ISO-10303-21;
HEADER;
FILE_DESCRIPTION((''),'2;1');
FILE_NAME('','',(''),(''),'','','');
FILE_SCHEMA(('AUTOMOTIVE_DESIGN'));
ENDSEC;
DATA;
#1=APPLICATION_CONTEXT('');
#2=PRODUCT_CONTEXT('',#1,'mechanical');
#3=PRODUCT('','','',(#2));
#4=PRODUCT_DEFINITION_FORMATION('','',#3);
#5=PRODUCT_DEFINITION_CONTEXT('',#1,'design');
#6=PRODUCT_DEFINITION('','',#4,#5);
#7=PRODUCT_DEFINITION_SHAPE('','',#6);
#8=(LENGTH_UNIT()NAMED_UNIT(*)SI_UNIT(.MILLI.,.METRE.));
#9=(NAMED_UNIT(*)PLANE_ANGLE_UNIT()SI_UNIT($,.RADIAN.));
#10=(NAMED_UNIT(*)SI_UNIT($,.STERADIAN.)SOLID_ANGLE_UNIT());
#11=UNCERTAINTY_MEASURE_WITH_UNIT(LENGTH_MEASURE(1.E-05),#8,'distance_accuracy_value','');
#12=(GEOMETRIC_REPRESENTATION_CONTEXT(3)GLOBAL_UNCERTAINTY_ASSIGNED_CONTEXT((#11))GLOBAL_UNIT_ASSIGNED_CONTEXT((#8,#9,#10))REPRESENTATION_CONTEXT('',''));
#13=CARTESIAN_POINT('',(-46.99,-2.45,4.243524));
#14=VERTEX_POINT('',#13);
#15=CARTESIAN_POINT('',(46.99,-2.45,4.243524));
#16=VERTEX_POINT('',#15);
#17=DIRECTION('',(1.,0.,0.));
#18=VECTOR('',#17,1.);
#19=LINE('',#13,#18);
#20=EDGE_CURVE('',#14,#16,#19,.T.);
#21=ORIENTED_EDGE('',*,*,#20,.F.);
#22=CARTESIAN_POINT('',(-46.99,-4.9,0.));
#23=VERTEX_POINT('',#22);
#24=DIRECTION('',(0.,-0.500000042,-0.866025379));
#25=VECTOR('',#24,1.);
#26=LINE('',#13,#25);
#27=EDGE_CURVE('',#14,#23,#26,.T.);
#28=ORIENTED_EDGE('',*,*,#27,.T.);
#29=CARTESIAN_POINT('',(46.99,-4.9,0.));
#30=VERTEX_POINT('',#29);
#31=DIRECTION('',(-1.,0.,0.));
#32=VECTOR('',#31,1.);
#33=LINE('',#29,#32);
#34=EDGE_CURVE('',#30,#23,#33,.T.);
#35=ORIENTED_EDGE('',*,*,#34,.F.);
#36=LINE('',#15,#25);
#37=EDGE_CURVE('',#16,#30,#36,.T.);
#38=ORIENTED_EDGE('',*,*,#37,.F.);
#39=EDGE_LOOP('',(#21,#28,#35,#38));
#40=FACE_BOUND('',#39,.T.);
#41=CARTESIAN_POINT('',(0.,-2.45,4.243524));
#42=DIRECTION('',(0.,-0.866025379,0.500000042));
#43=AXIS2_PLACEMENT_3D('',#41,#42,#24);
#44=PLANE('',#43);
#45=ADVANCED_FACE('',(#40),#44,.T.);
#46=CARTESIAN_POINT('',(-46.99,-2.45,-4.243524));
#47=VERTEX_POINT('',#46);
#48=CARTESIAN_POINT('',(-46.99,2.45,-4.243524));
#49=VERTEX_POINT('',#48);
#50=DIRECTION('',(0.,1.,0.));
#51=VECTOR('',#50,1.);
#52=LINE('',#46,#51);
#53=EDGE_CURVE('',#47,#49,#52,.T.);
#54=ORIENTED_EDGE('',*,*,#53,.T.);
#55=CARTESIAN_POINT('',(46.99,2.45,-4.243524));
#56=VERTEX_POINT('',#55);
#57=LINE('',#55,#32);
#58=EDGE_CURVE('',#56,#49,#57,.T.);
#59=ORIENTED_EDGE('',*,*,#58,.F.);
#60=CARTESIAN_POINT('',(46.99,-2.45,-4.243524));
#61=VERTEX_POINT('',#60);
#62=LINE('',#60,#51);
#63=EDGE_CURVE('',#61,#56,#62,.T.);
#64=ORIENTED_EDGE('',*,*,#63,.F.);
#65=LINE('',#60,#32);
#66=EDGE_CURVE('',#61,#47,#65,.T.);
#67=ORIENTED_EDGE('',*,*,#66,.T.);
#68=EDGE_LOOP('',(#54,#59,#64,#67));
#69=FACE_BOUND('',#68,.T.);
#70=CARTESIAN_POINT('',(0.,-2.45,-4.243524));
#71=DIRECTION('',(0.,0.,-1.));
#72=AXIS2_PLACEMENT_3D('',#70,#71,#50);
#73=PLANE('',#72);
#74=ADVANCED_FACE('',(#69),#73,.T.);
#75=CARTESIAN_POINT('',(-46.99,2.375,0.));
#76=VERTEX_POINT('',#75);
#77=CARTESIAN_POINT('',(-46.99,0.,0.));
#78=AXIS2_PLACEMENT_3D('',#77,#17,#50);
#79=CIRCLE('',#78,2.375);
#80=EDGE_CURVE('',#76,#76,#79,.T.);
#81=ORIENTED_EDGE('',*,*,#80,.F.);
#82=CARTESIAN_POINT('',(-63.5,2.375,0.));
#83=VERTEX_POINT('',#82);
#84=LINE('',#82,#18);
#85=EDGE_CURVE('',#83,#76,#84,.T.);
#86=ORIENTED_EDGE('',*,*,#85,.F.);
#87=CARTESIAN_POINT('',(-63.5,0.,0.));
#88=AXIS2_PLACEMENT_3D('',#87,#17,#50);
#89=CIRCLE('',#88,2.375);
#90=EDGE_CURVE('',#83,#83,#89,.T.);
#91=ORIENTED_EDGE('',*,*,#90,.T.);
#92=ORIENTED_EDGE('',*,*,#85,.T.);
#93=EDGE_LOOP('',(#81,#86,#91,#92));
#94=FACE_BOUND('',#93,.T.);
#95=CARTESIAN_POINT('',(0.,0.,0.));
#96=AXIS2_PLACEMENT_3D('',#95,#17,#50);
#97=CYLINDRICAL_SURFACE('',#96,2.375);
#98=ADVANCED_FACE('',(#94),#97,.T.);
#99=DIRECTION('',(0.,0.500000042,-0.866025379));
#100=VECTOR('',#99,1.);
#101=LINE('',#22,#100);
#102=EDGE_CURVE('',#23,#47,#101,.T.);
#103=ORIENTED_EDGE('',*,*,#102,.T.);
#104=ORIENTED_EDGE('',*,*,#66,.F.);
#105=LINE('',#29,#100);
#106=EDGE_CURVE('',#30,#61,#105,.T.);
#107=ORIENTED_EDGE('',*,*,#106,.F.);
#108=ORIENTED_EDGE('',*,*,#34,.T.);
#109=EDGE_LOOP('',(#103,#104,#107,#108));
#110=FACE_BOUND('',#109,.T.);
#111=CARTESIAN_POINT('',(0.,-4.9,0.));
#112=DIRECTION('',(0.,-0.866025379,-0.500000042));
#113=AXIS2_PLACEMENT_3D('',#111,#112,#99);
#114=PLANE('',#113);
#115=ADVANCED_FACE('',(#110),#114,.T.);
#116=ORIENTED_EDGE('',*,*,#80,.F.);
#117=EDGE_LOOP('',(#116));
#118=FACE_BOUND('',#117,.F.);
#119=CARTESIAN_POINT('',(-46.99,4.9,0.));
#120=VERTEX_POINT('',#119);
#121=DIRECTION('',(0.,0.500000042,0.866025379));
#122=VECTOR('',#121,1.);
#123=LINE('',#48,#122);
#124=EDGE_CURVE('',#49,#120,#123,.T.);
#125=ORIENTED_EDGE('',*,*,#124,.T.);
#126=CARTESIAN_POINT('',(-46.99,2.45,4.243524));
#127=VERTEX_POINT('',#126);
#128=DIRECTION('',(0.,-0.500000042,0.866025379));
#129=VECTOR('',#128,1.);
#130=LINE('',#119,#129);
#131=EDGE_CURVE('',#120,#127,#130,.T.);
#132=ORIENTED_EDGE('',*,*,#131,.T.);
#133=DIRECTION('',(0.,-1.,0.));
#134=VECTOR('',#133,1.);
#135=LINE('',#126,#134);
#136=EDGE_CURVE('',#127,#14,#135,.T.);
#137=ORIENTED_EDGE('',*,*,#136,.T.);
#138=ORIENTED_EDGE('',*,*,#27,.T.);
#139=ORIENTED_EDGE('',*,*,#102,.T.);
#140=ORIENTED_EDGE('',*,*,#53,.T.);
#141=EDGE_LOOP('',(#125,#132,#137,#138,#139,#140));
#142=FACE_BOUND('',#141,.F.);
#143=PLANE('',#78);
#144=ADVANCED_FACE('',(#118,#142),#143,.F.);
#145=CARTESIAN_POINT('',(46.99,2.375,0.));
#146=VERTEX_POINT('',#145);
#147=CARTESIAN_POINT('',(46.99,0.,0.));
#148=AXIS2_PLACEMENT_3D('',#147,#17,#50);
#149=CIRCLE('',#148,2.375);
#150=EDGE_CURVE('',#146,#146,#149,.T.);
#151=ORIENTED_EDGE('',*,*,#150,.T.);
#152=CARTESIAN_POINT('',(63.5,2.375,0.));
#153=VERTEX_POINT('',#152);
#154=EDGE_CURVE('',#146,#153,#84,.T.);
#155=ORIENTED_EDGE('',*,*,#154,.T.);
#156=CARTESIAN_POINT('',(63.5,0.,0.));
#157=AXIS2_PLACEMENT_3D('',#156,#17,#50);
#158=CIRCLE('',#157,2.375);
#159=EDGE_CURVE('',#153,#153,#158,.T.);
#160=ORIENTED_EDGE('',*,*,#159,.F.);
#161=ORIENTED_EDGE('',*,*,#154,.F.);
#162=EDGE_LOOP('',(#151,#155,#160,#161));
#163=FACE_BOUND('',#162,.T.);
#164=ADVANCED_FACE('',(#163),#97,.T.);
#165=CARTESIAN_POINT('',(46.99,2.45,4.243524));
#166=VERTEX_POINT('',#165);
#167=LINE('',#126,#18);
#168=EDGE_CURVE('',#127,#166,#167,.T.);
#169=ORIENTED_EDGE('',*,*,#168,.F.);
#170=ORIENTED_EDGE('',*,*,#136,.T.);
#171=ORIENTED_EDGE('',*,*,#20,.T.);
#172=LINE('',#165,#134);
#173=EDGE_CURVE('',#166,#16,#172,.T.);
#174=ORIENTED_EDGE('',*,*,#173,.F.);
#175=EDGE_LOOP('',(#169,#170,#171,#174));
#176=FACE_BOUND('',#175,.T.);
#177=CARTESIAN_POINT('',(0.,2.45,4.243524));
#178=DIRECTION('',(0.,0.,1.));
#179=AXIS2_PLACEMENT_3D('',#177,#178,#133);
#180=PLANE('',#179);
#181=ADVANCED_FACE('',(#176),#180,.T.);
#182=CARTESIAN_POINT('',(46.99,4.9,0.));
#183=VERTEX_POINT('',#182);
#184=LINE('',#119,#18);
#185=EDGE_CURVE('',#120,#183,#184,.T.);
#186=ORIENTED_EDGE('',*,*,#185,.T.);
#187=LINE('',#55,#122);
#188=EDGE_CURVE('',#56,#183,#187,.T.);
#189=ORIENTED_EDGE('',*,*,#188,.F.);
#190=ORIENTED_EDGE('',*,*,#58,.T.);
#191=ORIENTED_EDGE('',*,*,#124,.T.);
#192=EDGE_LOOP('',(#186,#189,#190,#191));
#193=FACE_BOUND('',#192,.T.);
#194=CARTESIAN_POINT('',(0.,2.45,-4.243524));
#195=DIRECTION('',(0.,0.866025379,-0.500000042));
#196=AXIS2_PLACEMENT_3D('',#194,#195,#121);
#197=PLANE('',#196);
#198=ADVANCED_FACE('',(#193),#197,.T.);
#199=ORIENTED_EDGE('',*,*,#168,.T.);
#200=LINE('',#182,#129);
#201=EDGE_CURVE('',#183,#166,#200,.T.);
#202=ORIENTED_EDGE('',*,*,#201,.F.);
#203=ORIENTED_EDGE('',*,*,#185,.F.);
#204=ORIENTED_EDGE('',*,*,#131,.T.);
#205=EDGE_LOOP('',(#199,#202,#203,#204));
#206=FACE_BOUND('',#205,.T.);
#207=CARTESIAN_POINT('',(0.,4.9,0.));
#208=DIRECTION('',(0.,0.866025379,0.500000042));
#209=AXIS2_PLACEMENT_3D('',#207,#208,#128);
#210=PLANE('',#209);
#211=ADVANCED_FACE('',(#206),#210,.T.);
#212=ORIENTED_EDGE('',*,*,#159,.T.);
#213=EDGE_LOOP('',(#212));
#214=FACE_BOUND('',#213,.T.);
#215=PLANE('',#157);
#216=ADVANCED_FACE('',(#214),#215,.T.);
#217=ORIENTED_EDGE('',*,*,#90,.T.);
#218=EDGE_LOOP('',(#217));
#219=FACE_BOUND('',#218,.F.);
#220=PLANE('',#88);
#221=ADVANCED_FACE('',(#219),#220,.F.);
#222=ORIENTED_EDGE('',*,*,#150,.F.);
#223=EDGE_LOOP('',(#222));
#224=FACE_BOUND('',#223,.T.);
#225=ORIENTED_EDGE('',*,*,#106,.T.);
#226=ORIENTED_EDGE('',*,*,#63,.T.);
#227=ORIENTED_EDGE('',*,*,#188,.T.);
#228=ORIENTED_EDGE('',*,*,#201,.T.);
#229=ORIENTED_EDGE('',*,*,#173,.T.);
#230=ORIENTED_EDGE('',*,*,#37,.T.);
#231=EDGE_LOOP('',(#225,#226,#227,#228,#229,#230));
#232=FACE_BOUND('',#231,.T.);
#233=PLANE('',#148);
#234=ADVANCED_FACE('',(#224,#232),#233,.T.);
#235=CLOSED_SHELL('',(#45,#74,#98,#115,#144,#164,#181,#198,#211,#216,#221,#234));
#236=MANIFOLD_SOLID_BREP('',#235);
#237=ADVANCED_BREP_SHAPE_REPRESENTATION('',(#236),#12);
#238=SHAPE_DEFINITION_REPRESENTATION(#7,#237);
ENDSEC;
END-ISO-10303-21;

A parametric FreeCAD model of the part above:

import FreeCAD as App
import Part
import Sketcher

V = App.Vector
Q = App.Units.Quantity


def add_polygon(sketch, points):
    """Adds a closed chain of lines whose ends are joined by coincident constraints."""
    first, n = sketch.GeometryCount, len(points)
    for a, b in zip(points, points[1:] + points[:1]):
        sketch.addGeometry(Part.LineSegment(App.Vector(*a, 0), App.Vector(*b, 0)), False)
    for i in range(n):
        sketch.addConstraint(Sketcher.Constraint("Coincident", first + i, 2, first + (i + 1) % n, 1))

doc = App.newDocument("Part")
body = doc.addObject("PartDesign::Body", "Body")

# Sketch on YZ plane
sketch1 = body.newObject("Sketcher::SketchObject", "Sketch")
sketch1.AttachmentSupport = (doc.getObject("YZ_Plane"), [""])
sketch1.MapMode = "FlatFace"
add_polygon(sketch1, [(2.5, -4.2), (4.9, 0), (2.5, 4.2), (-2.5, 4.2), (-4.9, 0), (-2.5, -4.2)])  # lines 0-5
sketch1.addConstraint(Sketcher.Constraint("Horizontal", 2))
sketch1.addConstraint(Sketcher.Constraint("Horizontal", 5))
sketch1.addConstraint(Sketcher.Constraint("Symmetric", 0, 2, 3, 2, -1, 1))
sketch1.addConstraint(Sketcher.Constraint("Symmetric", 1, 2, 4, 2, -1, 1))
sketch1.addConstraint(Sketcher.Constraint("PointOnObject", 0, 2, -1))
sketch1.addConstraint(Sketcher.Constraint("Parallel", 0, 3))
sketch1.addConstraint(Sketcher.Constraint("Vertical", 2, 2, 4, 2))
sketch1.addConstraint(Sketcher.Constraint("Angle", 0, Q("59.999997 deg")))
sketch1.addConstraint(Sketcher.Constraint("DistanceX", 2, 2, 2, 1, 4.9))
sketch1.addConstraint(Sketcher.Constraint("Distance", 0, 4.9))
pad1 = body.newObject("PartDesign::Pad", "Pad")
pad1.Profile = sketch1
pad1.Length = Q("3.7 in")
pad1.Midplane = True

# Sketch on YZ plane
sketch2 = body.newObject("Sketcher::SketchObject", "Sketch001")
sketch2.AttachmentSupport = (doc.getObject("YZ_Plane"), [""])
sketch2.MapMode = "FlatFace"
sketch2.addGeometry(Part.Circle(V(0, 0, 0), V(0, 0, 1), 2.4), False)
sketch2.addConstraint(Sketcher.Constraint("Coincident", 0, 3, -1, 1))
sketch2.addConstraint(Sketcher.Constraint("Diameter", 0, 4.75))
pad2 = body.newObject("PartDesign::Pad", "Pad001")
pad2.Profile = sketch2
pad2.Length = Q("5 in")
pad2.Midplane = True

doc.recompute()
